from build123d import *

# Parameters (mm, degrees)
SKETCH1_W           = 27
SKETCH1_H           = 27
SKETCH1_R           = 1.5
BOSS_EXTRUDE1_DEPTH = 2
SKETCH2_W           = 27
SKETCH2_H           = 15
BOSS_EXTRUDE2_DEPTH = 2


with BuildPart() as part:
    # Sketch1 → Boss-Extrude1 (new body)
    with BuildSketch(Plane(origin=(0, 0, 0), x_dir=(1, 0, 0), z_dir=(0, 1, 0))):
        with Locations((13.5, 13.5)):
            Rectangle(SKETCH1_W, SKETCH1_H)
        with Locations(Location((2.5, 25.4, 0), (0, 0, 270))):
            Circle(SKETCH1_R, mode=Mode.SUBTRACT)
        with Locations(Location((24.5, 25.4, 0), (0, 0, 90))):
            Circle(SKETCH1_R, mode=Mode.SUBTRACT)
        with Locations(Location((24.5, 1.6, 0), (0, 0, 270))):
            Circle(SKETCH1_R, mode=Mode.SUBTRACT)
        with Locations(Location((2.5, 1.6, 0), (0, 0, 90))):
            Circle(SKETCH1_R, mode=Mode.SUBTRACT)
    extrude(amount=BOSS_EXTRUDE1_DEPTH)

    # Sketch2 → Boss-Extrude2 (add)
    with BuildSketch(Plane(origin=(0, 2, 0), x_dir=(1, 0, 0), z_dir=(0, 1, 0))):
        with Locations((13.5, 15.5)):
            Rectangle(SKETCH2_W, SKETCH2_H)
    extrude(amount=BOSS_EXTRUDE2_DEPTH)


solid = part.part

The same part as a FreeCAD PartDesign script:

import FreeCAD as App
import Part
import Sketcher

V = App.Vector


def add_polygon(sketch, points):
    """Adds a closed chain of lines whose ends are joined by coincident constraints."""
    first, n = sketch.GeometryCount, len(points)
    for a, b in zip(points, points[1:] + points[:1]):
        sketch.addGeometry(Part.LineSegment(App.Vector(*a, 0), App.Vector(*b, 0)), False)
    for i in range(n):
        sketch.addConstraint(Sketcher.Constraint("Coincident", first + i, 2, first + (i + 1) % n, 1))

doc = App.newDocument("Part")
params = doc.addObject("Spreadsheet::Sheet", "Params")
for row, (alias, value) in enumerate([
    ("sketch1_diameter", "3 mm"),
    ("sketch1_width", "27 mm"),
    ("pad1_length", "2 mm"),
    ("sketch2_width", "27 mm"),
    ("sketch2_height", "15 mm"),
    ("pad2_length", "2 mm"),
], start=1):
    params.set(f"A{row}", alias)
    params.set(f"B{row}", "=" + value)
    params.setAlias(f"B{row}", alias)

body = doc.addObject("PartDesign::Body", "Body")

sketch1 = body.newObject("Sketcher::SketchObject", "Sketch")
sketch1.AttachmentSupport = (doc.getObject("XZ_Plane"), [""])
sketch1.MapMode = "FlatFace"
add_polygon(sketch1, [(0, -27), (0, 0), (27, 0), (27, -27)])
sketch1.addGeometry(Part.Circle(V(2.5, -1.6, 0), V(0, 0, 1), 1.5), False)
sketch1.addGeometry(Part.Circle(V(24.5, -1.6, 0), V(0, 0, 1), 1.5), False)
sketch1.addGeometry(Part.Circle(V(2.5, -25.4, 0), V(0, 0, 1), 1.5), False)
sketch1.addGeometry(Part.Circle(V(24.5, -25.4, 0), V(0, 0, 1), 1.5), False)
sketch1.addConstraint([
    Sketcher.Constraint("Vertical", 0),
    Sketcher.Constraint("Horizontal", 1),
    Sketcher.Constraint("Vertical", 2),
    Sketcher.Constraint("Horizontal", 3),
    Sketcher.Constraint("Coincident", 0, 2, -1, 1),
    Sketcher.Constraint("Equal", 4, 5),
    Sketcher.Constraint("Equal", 5, 6),
    Sketcher.Constraint("Equal", 6, 7),
    Sketcher.Constraint("Horizontal", 4, 3, 5, 3),
    Sketcher.Constraint("Horizontal", 6, 3, 7, 3),
    Sketcher.Constraint("Vertical", 4, 3, 6, 3),
    Sketcher.Constraint("Vertical", 5, 3, 7, 3),
    Sketcher.Constraint("Equal", 3, 0),
    Sketcher.Constraint("Diameter", 4, 3.0),
    Sketcher.Constraint("DistanceX", 1, 1, 1, 2, 27.0),
    Sketcher.Constraint("DistanceX", 4, 3, 5, 3, 22.0),
    Sketcher.Constraint("DistanceX", -1, 1, 4, 3, 2.5),
    Sketcher.Constraint("DistanceY", 4, 3, -1, 1, 1.6),
    Sketcher.Constraint("DistanceY", 6, 3, -1, 1, 25.4),
])
sketch1.setExpression("Constraints[17]", "Params.sketch1_diameter")
sketch1.setExpression("Constraints[18]", "Params.sketch1_width")
pad1 = body.newObject("PartDesign::Pad", "Pad")
pad1.Profile = sketch1
pad1.setExpression("Length", "Params.pad1_length")
pad1.Reversed = True

sketch2 = body.newObject("Sketcher::SketchObject", "Sketch001")
sketch2.AttachmentSupport = (doc.getObject("XZ_Plane"), [""])
sketch2.MapMode = "FlatFace"
sketch2.AttachmentOffset = App.Placement(V(0, 0, -2), App.Rotation())
add_polygon(sketch2, [(0, -23), (0, -8), (27, -8), (27, -23)])
sketch2.addConstraint([
    Sketcher.Constraint("Vertical", 0),
    Sketcher.Constraint("Horizontal", 1),
    Sketcher.Constraint("Vertical", 2),
    Sketcher.Constraint("Horizontal", 3),
    Sketcher.Constraint("PointOnObject", 0, 2, -2),
    Sketcher.Constraint("DistanceX", 1, 1, 1, 2, 27.0),
    Sketcher.Constraint("DistanceY", 0, 1, 0, 2, 15.0),
    Sketcher.Constraint("DistanceY", 0, 2, -1, 1, 8.0),
])
sketch2.setExpression("Constraints[9]", "Params.sketch2_width")
sketch2.setExpression("Constraints[10]", "Params.sketch2_height")
pad2 = body.newObject("PartDesign::Pad", "Pad001")
pad2.Profile = sketch2
pad2.setExpression("Length", "Params.pad2_length")
pad2.Reversed = True

doc.recompute()
